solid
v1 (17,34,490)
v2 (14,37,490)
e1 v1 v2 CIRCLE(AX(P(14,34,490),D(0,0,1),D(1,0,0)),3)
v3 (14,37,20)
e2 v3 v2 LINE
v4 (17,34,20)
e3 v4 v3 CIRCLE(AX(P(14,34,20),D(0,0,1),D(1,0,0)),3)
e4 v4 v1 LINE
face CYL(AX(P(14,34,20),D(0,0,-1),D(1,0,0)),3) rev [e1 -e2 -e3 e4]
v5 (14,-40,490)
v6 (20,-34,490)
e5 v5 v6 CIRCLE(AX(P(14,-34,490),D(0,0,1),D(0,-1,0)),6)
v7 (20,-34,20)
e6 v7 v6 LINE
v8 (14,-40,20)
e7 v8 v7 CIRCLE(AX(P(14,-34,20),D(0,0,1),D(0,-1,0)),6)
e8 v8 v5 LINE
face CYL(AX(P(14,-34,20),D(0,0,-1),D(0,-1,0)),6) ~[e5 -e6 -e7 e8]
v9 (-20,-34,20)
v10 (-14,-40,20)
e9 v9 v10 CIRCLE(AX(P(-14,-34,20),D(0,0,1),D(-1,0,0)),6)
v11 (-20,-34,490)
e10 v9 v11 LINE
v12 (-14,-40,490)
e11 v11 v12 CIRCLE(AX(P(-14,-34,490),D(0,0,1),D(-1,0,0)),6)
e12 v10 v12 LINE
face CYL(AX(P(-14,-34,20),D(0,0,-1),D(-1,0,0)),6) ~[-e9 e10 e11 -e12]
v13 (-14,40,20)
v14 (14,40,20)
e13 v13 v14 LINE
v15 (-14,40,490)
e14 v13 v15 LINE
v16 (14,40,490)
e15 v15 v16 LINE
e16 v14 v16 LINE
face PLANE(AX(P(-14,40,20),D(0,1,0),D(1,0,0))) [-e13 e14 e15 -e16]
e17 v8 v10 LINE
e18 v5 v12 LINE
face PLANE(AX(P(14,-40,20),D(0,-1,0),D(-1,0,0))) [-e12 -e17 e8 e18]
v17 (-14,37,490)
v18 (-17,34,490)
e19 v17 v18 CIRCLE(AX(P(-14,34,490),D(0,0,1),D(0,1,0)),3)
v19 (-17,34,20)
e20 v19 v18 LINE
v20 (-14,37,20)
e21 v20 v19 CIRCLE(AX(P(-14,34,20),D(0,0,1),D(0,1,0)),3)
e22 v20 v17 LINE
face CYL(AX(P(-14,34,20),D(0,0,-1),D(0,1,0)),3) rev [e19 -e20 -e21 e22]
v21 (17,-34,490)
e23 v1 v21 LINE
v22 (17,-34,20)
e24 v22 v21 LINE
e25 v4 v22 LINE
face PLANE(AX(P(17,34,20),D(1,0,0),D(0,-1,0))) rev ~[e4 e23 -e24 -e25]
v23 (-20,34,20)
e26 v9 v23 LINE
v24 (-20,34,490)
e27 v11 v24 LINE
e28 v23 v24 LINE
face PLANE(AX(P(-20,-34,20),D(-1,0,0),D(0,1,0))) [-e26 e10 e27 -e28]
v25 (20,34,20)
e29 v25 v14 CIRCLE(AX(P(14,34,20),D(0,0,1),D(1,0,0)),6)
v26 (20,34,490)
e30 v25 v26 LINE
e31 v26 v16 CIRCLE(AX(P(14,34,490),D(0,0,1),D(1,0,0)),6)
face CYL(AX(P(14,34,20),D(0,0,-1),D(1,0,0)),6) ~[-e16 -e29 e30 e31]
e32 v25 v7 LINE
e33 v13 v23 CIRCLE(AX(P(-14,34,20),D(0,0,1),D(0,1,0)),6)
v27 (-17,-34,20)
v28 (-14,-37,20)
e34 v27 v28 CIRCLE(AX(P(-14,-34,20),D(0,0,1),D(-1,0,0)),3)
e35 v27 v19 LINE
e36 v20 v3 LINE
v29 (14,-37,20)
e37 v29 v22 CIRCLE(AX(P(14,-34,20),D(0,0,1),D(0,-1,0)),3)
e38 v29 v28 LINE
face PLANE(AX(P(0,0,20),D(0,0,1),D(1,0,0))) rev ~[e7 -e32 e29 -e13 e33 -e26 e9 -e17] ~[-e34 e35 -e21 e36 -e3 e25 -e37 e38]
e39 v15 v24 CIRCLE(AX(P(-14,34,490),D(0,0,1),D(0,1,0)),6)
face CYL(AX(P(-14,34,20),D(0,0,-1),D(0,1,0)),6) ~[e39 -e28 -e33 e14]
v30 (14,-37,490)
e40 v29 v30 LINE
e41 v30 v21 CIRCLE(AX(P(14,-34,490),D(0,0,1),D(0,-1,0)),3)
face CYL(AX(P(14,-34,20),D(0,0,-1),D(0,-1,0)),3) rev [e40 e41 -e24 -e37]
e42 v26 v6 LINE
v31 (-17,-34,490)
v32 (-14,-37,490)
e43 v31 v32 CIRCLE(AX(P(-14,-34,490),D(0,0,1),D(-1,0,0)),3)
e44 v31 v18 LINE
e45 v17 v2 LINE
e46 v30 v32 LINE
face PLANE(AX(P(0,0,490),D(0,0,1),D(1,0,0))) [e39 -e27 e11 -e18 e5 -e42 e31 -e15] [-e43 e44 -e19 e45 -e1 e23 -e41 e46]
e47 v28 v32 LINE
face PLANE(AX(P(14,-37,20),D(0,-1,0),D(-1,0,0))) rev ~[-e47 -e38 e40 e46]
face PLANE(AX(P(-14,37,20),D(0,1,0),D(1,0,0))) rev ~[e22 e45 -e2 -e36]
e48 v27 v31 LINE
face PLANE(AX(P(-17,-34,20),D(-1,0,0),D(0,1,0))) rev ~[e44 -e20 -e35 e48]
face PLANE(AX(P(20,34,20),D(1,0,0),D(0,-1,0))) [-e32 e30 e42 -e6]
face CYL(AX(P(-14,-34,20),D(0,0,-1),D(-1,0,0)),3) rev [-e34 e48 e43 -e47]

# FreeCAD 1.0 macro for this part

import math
import FreeCAD as App
import Part
import Sketcher
from FreeCAD import Vector

doc = App.newDocument("Part")
body = doc.addObject("PartDesign::Body", "Body")

sketch1 = body.newObject("Sketcher::SketchObject", "Sketch")
sketch1.AttachmentSupport = (doc.getObject("XY_Plane"), [""])
sketch1.MapMode = "FlatFace"
sketch1.AttachmentOffset = App.Placement(Vector(0, 0, 20), App.Rotation())
sketch1.addGeometry([
    Part.LineSegment(Vector(-20, 34, 0), Vector(-20, -34, 0)),
    Part.ArcOfCircle(Part.Circle(Vector(-14, -34, 0), Vector(0, 0, 1), 6), math.radians(180), math.radians(270)),
    Part.LineSegment(Vector(-14, -40, 0), Vector(14, -40, 0)),
    Part.ArcOfCircle(Part.Circle(Vector(14, -34, 0), Vector(0, 0, 1), 6), math.radians(-90), math.radians(0)),
    Part.LineSegment(Vector(20, -34, 0), Vector(20, 34, 0)),
    Part.ArcOfCircle(Part.Circle(Vector(14, 34, 0), Vector(0, 0, 1), 6), math.radians(0), math.radians(90)),
    Part.LineSegment(Vector(14, 40, 0), Vector(-14, 40, 0)),
    Part.ArcOfCircle(Part.Circle(Vector(-14, 34, 0), Vector(0, 0, 1), 6), math.radians(90), math.radians(180)),
    Part.ArcOfCircle(Part.Circle(Vector(-14, 34, 0), Vector(0, 0, 1), 3), math.radians(90), math.radians(180)),
    Part.LineSegment(Vector(-14, 37, 0), Vector(14, 37, 0)),
    Part.ArcOfCircle(Part.Circle(Vector(14, 34, 0), Vector(0, 0, 1), 3), math.radians(0), math.radians(90)),
    Part.LineSegment(Vector(17, 34, 0), Vector(17, -34, 0)),
    Part.ArcOfCircle(Part.Circle(Vector(14, -34, 0), Vector(0, 0, 1), 3), math.radians(-90), math.radians(0)),
    Part.LineSegment(Vector(14, -37, 0), Vector(-14, -37, 0)),
    Part.ArcOfCircle(Part.Circle(Vector(-14, -34, 0), Vector(0, 0, 1), 3), math.radians(180), math.radians(270)),
    Part.LineSegment(Vector(-17, -34, 0), Vector(-17, 34, 0)),
], False)
sketch1.addConstraint([
    Sketcher.Constraint("Tangent", 0, 2, 1, 1),
    Sketcher.Constraint("Tangent", 1, 2, 2, 1),
    Sketcher.Constraint("Tangent", 2, 2, 3, 1),
    Sketcher.Constraint("Tangent", 3, 2, 4, 1),
    Sketcher.Constraint("Tangent", 4, 2, 5, 1),
    Sketcher.Constraint("Tangent", 5, 2, 6, 1),
    Sketcher.Constraint("Tangent", 6, 2, 7, 1),
    Sketcher.Constraint("Tangent", 7, 2, 0, 1),
    Sketcher.Constraint("Tangent", 8, 1, 9, 1),
    Sketcher.Constraint("Tangent", 9, 2, 10, 2),
    Sketcher.Constraint("Tangent", 10, 1, 11, 1),
    Sketcher.Constraint("Tangent", 11, 2, 12, 2),
    Sketcher.Constraint("Tangent", 12, 1, 13, 1),
    Sketcher.Constraint("Tangent", 13, 2, 14, 2),
    Sketcher.Constraint("Tangent", 14, 1, 15, 1),
    Sketcher.Constraint("Tangent", 15, 2, 8, 2),
    Sketcher.Constraint("Vertical", 0),
    Sketcher.Constraint("Horizontal", 2),
    Sketcher.Constraint("Vertical", 4),
    Sketcher.Constraint("Horizontal", 6),
    Sketcher.Constraint("Horizontal", 9),
    Sketcher.Constraint("Vertical", 11),
    Sketcher.Constraint("Horizontal", 13),
    Sketcher.Constraint("Vertical", 15),
    Sketcher.Constraint("Coincident", 8, 3, 7, 3),
    Sketcher.Constraint("Coincident", 10, 3, 5, 3),
    Sketcher.Constraint("Coincident", 12, 3, 3, 3),
    Sketcher.Constraint("Equal", 1, 3),
    Sketcher.Constraint("Equal", 3, 5),
    Sketcher.Constraint("Equal", 5, 7),
    Sketcher.Constraint("Equal", 12, 14),
    Sketcher.Constraint("Symmetric", 1, 3, 5, 3, -1, 1),
    Sketcher.Constraint("Radius", 1, 6.0),
    Sketcher.Constraint("Radius", 8, 3.0),
    Sketcher.Constraint("DistanceX", 0, 2, -1, 1, 20.0),
    Sketcher.Constraint("DistanceY", 1, 2, -1, 1, 40.0),
])
pad1 = body.newObject("PartDesign::Pad", "Pad")
pad1.Profile = sketch1
pad1.Length = 470

doc.recompute()
